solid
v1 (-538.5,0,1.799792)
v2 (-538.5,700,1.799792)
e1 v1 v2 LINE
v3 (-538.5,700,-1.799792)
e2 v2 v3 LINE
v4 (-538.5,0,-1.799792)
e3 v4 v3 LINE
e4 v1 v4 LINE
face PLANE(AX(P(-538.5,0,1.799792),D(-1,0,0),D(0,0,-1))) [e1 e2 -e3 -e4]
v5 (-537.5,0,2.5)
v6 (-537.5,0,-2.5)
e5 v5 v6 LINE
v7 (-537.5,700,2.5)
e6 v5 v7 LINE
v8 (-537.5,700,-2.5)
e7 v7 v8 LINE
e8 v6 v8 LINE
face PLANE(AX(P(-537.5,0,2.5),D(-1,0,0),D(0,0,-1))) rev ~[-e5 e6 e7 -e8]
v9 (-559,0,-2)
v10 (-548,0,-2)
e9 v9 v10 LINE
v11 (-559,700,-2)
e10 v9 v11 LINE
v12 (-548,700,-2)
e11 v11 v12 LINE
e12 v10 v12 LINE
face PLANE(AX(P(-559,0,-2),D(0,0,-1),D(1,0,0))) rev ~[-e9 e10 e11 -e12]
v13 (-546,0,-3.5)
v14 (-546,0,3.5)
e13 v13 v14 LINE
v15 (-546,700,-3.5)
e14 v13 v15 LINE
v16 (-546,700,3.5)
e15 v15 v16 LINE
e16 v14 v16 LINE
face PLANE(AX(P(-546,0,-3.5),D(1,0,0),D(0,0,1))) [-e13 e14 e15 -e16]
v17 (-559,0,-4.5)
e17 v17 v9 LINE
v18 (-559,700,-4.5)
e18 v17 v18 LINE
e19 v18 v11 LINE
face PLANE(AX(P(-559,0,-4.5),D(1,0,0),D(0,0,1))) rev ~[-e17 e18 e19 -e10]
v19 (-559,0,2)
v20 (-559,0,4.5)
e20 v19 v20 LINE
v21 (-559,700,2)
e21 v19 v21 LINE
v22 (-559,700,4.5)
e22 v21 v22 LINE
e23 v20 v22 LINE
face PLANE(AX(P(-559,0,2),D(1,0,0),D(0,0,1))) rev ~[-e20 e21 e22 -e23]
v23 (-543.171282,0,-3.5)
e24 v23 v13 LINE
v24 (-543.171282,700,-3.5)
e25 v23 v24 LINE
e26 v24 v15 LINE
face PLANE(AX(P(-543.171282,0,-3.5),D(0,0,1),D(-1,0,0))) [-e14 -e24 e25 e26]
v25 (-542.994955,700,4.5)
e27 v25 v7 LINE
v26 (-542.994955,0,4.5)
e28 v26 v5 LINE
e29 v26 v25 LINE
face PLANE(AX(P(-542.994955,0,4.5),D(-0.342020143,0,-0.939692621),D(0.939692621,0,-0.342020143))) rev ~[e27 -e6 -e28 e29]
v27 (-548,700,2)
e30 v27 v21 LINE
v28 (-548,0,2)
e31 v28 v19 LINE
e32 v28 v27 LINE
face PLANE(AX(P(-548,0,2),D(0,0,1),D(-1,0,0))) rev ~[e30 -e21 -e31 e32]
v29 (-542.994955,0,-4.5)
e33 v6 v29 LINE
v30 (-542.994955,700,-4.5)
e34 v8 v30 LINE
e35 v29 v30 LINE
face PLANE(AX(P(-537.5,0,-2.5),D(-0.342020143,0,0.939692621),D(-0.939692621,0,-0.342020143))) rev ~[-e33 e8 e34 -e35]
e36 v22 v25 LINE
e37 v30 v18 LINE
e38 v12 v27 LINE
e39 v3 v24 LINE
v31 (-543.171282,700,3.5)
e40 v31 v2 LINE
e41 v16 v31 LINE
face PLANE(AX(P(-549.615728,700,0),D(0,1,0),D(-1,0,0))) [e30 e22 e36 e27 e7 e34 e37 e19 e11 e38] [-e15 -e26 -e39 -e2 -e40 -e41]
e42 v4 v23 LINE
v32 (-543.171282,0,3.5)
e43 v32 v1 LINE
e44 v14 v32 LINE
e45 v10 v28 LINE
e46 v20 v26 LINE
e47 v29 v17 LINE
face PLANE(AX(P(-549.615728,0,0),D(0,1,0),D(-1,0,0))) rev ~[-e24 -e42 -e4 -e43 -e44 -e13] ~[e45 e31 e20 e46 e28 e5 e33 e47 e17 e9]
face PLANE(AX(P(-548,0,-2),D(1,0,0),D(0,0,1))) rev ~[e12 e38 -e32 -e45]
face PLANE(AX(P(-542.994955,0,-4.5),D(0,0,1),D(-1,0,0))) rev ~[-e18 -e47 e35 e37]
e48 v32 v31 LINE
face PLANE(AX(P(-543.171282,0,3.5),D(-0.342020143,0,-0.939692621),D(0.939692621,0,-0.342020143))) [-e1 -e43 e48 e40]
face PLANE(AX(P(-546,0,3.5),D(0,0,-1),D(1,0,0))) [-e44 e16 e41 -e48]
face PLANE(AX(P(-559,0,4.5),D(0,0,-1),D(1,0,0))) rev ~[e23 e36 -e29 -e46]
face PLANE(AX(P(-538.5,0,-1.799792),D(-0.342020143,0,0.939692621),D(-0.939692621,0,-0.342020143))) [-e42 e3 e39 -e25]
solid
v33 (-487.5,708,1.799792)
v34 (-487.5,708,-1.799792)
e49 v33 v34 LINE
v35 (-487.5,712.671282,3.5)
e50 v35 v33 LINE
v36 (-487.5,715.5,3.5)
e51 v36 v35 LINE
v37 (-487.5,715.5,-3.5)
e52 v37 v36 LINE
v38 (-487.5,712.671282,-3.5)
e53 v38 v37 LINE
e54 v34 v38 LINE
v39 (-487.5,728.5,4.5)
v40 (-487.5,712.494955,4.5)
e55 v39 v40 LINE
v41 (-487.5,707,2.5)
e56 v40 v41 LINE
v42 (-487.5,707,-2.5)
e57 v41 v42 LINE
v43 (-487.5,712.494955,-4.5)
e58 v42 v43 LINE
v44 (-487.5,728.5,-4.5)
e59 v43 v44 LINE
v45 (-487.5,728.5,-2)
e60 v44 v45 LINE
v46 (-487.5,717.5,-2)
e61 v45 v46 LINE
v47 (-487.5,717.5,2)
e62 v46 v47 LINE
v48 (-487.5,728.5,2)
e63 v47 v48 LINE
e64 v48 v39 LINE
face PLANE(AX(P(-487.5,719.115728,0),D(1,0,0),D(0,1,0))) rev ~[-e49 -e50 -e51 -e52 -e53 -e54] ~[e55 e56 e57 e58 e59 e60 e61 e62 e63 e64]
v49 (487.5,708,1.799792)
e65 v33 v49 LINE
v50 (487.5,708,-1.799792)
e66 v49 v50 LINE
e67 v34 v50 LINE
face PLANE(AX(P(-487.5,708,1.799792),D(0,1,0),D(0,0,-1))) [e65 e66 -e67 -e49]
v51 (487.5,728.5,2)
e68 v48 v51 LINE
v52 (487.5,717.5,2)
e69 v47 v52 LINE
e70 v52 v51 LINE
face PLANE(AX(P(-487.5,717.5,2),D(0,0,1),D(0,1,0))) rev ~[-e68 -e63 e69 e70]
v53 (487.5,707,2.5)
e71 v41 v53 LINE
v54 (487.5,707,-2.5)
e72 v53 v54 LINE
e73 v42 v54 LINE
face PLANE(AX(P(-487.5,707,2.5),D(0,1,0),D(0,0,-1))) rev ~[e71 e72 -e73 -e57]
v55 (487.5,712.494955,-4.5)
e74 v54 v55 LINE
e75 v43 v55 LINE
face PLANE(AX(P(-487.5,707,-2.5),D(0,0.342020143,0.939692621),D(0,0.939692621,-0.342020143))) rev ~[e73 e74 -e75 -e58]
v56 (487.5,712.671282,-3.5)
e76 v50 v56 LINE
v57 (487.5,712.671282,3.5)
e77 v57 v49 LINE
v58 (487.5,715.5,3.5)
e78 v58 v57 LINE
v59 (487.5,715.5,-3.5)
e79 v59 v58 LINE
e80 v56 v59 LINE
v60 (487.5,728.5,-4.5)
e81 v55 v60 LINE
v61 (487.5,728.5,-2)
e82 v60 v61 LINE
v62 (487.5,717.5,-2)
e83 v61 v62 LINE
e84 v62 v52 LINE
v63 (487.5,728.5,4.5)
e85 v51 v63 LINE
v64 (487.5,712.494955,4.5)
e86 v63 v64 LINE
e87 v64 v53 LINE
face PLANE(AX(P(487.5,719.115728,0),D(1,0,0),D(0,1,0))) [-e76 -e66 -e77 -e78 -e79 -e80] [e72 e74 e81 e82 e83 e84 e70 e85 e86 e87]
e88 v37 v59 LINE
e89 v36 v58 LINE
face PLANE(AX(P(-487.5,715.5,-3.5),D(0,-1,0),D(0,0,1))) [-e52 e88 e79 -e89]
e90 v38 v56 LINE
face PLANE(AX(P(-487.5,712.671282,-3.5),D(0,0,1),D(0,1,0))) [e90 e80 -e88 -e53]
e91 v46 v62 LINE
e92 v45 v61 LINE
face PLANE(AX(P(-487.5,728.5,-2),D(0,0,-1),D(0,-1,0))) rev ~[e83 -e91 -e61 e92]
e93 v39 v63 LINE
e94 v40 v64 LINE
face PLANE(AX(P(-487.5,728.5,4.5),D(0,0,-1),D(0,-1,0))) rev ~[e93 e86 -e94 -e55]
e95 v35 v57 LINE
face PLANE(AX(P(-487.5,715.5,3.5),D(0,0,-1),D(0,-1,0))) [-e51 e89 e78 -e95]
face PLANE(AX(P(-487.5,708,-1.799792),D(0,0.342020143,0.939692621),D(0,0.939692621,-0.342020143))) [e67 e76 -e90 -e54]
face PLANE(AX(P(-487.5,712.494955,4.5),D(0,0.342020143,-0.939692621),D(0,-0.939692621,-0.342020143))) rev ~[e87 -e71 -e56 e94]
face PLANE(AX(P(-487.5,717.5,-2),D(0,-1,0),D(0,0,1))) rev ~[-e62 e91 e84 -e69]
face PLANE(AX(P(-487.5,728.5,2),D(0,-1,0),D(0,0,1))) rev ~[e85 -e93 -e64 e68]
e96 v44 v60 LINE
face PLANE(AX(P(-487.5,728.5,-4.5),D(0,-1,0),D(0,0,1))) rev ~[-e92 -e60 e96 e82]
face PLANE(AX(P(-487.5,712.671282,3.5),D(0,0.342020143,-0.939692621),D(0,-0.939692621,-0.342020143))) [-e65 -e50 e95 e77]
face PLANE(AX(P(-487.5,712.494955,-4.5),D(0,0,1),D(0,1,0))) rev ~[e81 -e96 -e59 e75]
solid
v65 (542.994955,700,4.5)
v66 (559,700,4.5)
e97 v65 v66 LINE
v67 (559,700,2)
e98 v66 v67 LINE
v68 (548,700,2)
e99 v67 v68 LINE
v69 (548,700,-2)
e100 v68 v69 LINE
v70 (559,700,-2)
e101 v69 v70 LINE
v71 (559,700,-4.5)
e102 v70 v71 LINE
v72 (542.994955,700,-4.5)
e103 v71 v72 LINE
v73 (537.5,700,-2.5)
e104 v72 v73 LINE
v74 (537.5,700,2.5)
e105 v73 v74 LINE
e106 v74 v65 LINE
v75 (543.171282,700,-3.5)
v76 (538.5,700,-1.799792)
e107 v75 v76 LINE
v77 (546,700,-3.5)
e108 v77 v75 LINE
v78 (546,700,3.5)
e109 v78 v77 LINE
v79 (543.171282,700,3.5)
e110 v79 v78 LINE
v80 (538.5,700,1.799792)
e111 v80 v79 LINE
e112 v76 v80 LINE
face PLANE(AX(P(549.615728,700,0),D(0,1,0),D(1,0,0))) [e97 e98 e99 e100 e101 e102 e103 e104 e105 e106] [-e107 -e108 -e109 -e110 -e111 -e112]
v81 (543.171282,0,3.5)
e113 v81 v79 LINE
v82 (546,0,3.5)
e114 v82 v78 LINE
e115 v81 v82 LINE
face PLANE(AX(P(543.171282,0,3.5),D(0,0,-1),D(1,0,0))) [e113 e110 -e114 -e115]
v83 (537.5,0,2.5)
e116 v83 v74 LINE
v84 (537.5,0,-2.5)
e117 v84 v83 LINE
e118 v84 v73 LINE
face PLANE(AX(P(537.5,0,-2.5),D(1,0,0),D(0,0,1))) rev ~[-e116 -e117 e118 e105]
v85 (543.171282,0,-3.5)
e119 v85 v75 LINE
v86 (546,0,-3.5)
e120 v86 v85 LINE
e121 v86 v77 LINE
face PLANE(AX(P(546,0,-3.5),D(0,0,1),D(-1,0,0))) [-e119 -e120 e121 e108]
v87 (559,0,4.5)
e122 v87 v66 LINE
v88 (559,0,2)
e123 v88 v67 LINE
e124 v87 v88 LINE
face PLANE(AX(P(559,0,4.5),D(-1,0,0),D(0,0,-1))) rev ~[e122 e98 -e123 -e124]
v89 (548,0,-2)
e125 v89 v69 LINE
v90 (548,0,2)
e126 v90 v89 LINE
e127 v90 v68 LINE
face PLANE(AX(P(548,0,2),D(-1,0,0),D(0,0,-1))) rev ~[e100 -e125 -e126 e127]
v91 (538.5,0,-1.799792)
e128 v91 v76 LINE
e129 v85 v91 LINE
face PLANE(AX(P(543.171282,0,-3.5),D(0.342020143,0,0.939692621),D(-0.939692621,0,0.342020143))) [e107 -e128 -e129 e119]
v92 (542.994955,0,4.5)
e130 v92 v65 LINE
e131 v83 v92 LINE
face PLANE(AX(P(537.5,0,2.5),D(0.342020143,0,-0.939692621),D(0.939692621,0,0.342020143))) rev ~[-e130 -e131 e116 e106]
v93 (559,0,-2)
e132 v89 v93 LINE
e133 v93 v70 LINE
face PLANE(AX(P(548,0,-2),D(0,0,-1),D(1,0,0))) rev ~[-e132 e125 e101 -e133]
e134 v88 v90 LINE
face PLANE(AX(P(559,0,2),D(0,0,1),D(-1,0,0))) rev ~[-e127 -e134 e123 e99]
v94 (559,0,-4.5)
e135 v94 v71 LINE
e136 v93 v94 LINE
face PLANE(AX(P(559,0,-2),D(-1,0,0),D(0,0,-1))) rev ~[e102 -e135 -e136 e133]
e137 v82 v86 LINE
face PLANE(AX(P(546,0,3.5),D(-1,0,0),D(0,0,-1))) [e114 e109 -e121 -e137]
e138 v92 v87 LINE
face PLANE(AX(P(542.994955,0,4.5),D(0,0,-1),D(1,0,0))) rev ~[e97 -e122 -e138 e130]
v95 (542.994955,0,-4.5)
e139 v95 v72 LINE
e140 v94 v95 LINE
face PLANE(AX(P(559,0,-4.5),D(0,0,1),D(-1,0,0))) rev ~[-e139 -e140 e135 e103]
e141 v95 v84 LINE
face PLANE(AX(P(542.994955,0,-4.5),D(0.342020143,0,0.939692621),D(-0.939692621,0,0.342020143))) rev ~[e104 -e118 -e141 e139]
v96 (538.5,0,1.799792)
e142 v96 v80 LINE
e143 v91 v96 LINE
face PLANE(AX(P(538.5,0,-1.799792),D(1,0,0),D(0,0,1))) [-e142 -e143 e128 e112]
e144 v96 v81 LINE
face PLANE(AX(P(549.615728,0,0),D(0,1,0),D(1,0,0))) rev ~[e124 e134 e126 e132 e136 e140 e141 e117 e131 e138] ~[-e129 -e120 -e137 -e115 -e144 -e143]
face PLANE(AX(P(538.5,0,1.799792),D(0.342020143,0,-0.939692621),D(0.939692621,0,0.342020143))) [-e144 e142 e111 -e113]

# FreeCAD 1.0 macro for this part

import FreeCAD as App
import Part
import Sketcher
Q = App.Units.Quantity

doc = App.newDocument("Part")
params = doc.addObject("Spreadsheet::Sheet", "Params")
for row, (alias, value) in enumerate([
    ("sketch1_width", "11 mm"),
    ("sketch1_height", "5 mm"),
    ("sketch1_height2", "4 mm"),
    ("sketch1_height3", "7 mm"),
    ("sketch1_height4", "2.5 mm"),
    ("pad1_length", "700 mm"),
    ("sketch2_width", "11 mm"),
    ("sketch2_height", "5 mm"),
    ("sketch2_height2", "4 mm"),
    ("sketch2_height3", "7 mm"),
    ("sketch2_height4", "2.5 mm"),
    ("pad2_length", "975 mm"),
    ("sketch3_width", "11 mm"),
    ("sketch3_height", "5 mm"),
    ("sketch3_height2", "4 mm"),
    ("sketch3_height3", "7 mm"),
    ("sketch3_height4", "2.5 mm"),
    ("pad3_length", "700 mm"),
], start=1):
    params.set(f"A{row}", alias)
    params.set(f"B{row}", "=" + value)
    params.setAlias(f"B{row}", alias)

body = doc.addObject("PartDesign::Body", "Body")

# Sketch on XZ plane
sketch1 = doc.addObject("Sketcher::SketchObject", "Sketch")
body.addObject(sketch1)
sketch1.AttachmentSupport = (doc.XZ_Plane, [""])
sketch1.MapMode = "FlatFace"
sketch1.addGeometry([
    Part.LineSegment(App.Vector(-559, 4.5, 0), App.Vector(-543, 4.5, 0)),  # 0
    Part.LineSegment(App.Vector(-543, 4.5, 0), App.Vector(-537.5, 2.5, 0)),  # 1
    Part.LineSegment(App.Vector(-537.5, 2.5, 0), App.Vector(-537.5, -2.5, 0)),  # 2
    Part.LineSegment(App.Vector(-537.5, -2.5, 0), App.Vector(-543, -4.5, 0)),  # 3
    Part.LineSegment(App.Vector(-543, -4.5, 0), App.Vector(-559, -4.5, 0)),  # 4
    Part.LineSegment(App.Vector(-559, -4.5, 0), App.Vector(-559, -2, 0)),  # 5
    Part.LineSegment(App.Vector(-559, -2, 0), App.Vector(-548, -2, 0)),  # 6
    Part.LineSegment(App.Vector(-548, -2, 0), App.Vector(-548, 2, 0)),  # 7
    Part.LineSegment(App.Vector(-548, 2, 0), App.Vector(-559, 2, 0)),  # 8
    Part.LineSegment(App.Vector(-559, 2, 0), App.Vector(-559, 4.5, 0)),  # 9
    Part.LineSegment(App.Vector(-538.5, 1.8, 0), App.Vector(-543.2, 3.5, 0)),  # 10
    Part.LineSegment(App.Vector(-543.2, 3.5, 0), App.Vector(-546, 3.5, 0)),  # 11
    Part.LineSegment(App.Vector(-546, 3.5, 0), App.Vector(-546, -3.5, 0)),  # 12
    Part.LineSegment(App.Vector(-546, -3.5, 0), App.Vector(-543.2, -3.5, 0)),  # 13
    Part.LineSegment(App.Vector(-543.2, -3.5, 0), App.Vector(-538.5, -1.8, 0)),  # 14
    Part.LineSegment(App.Vector(-538.5, -1.8, 0), App.Vector(-538.5, 1.8, 0)),  # 15
], False)
sketch1.addConstraint([
    Sketcher.Constraint("Coincident", 0, 2, 1, 1),
    Sketcher.Constraint("Coincident", 1, 2, 2, 1),
    Sketcher.Constraint("Coincident", 2, 2, 3, 1),
    Sketcher.Constraint("Coincident", 3, 2, 4, 1),
    Sketcher.Constraint("Coincident", 4, 2, 5, 1),
    Sketcher.Constraint("Coincident", 5, 2, 6, 1),
    Sketcher.Constraint("Coincident", 6, 2, 7, 1),
    Sketcher.Constraint("Coincident", 7, 2, 8, 1),
    Sketcher.Constraint("Coincident", 8, 2, 9, 1),
    Sketcher.Constraint("Coincident", 9, 2, 0, 1),
    Sketcher.Constraint("Coincident", 10, 2, 11, 1),
    Sketcher.Constraint("Coincident", 11, 2, 12, 1),
    Sketcher.Constraint("Coincident", 12, 2, 13, 1),
    Sketcher.Constraint("Coincident", 13, 2, 14, 1),
    Sketcher.Constraint("Coincident", 14, 2, 15, 1),
    Sketcher.Constraint("Coincident", 15, 2, 10, 1),
    Sketcher.Constraint("Horizontal", 0),
    Sketcher.Constraint("Vertical", 2),
    Sketcher.Constraint("Horizontal", 4),
    Sketcher.Constraint("Vertical", 5),
    Sketcher.Constraint("Horizontal", 6),
    Sketcher.Constraint("Vertical", 7),
    Sketcher.Constraint("Horizontal", 8),
    Sketcher.Constraint("Vertical", 9),
    Sketcher.Constraint("Horizontal", 11),
    Sketcher.Constraint("Vertical", 12),
    Sketcher.Constraint("Horizontal", 13),
    Sketcher.Constraint("Vertical", 15),
    Sketcher.Constraint("Symmetric", 0, 2, 3, 2, -1),
    Sketcher.Constraint("Symmetric", 5, 2, 8, 2, -1),
    Sketcher.Constraint("Symmetric", 10, 2, 13, 2, -1),
    Sketcher.Constraint("Parallel", 1, 10),
    Sketcher.Constraint("Parallel", 3, 14),
    Sketcher.Constraint("Equal", 1, 3),
    Sketcher.Constraint("DistanceX", 6, 1, 6, 2, 11.0),
    Sketcher.Constraint("DistanceY", 2, 2, 2, 1, 5.0),
    Sketcher.Constraint("DistanceY", 7, 1, 7, 2, 4.0),
    Sketcher.Constraint("DistanceY", 12, 2, 12, 1, 7.0),
    Sketcher.Constraint("Angle", 1, Q("-20 deg")),
    Sketcher.Constraint("DistanceY", 5, 1, 5, 2, 2.5),
    Sketcher.Constraint("DistanceX", 4, 2, -1, 1, 559.0),
    Sketcher.Constraint("DistanceX", 11, 2, -1, 1, 546.0),
    Sketcher.Constraint("DistanceX", 14, 2, 2, 2, 1.0),
    Sketcher.Constraint("DistanceX", 1, 2, -1, 1, 537.5),
    Sketcher.Constraint("DistanceX", 11, 2, 11, 1, 2.828718),
])
sketch1.setExpression("Constraints[34]", "Params.sketch1_width")
sketch1.setExpression("Constraints[35]", "Params.sketch1_height")
sketch1.setExpression("Constraints[36]", "Params.sketch1_height2")
sketch1.setExpression("Constraints[37]", "Params.sketch1_height3")
sketch1.setExpression("Constraints[39]", "Params.sketch1_height4")
pad1 = doc.addObject("PartDesign::Pad", "Pad")
body.addObject(pad1)
pad1.Profile = sketch1
pad1.setExpression("Length", "Params.pad1_length")
pad1.Reversed = True
body2 = doc.addObject("PartDesign::Body", "Body001")

# Sketch on YZ plane
sketch2 = doc.addObject("Sketcher::SketchObject", "Sketch001")
body2.addObject(sketch2)
sketch2.AttachmentSupport = (doc.getObject("YZ_Plane001"), [""])
sketch2.MapMode = "FlatFace"
sketch2.AttachmentOffset = App.Placement(App.Vector(0, 0, -487.5), App.Rotation())
sketch2.addGeometry([
    Part.LineSegment(App.Vector(728.5, 4.5, 0), App.Vector(712.5, 4.5, 0)),  # 0
    Part.LineSegment(App.Vector(712.5, 4.5, 0), App.Vector(707, 2.5, 0)),  # 1
    Part.LineSegment(App.Vector(707, 2.5, 0), App.Vector(707, -2.5, 0)),  # 2
    Part.LineSegment(App.Vector(707, -2.5, 0), App.Vector(712.5, -4.5, 0)),  # 3
    Part.LineSegment(App.Vector(712.5, -4.5, 0), App.Vector(728.5, -4.5, 0)),  # 4
    Part.LineSegment(App.Vector(728.5, -4.5, 0), App.Vector(728.5, -2, 0)),  # 5
    Part.LineSegment(App.Vector(728.5, -2, 0), App.Vector(717.5, -2, 0)),  # 6
    Part.LineSegment(App.Vector(717.5, -2, 0), App.Vector(717.5, 2, 0)),  # 7
    Part.LineSegment(App.Vector(717.5, 2, 0), App.Vector(728.5, 2, 0)),  # 8
    Part.LineSegment(App.Vector(728.5, 2, 0), App.Vector(728.5, 4.5, 0)),  # 9
    Part.LineSegment(App.Vector(708, 1.8, 0), App.Vector(712.7, 3.5, 0)),  # 10
    Part.LineSegment(App.Vector(712.7, 3.5, 0), App.Vector(715.5, 3.5, 0)),  # 11
    Part.LineSegment(App.Vector(715.5, 3.5, 0), App.Vector(715.5, -3.5, 0)),  # 12
    Part.LineSegment(App.Vector(715.5, -3.5, 0), App.Vector(712.7, -3.5, 0)),  # 13
    Part.LineSegment(App.Vector(712.7, -3.5, 0), App.Vector(708, -1.8, 0)),  # 14
    Part.LineSegment(App.Vector(708, -1.8, 0), App.Vector(708, 1.8, 0)),  # 15
], False)
sketch2.addConstraint([
    Sketcher.Constraint("Coincident", 0, 2, 1, 1),
    Sketcher.Constraint("Coincident", 1, 2, 2, 1),
    Sketcher.Constraint("Coincident", 2, 2, 3, 1),
    Sketcher.Constraint("Coincident", 3, 2, 4, 1),
    Sketcher.Constraint("Coincident", 4, 2, 5, 1),
    Sketcher.Constraint("Coincident", 5, 2, 6, 1),
    Sketcher.Constraint("Coincident", 6, 2, 7, 1),
    Sketcher.Constraint("Coincident", 7, 2, 8, 1),
    Sketcher.Constraint("Coincident", 8, 2, 9, 1),
    Sketcher.Constraint("Coincident", 9, 2, 0, 1),
    Sketcher.Constraint("Coincident", 10, 2, 11, 1),
    Sketcher.Constraint("Coincident", 11, 2, 12, 1),
    Sketcher.Constraint("Coincident", 12, 2, 13, 1),
    Sketcher.Constraint("Coincident", 13, 2, 14, 1),
    Sketcher.Constraint("Coincident", 14, 2, 15, 1),
    Sketcher.Constraint("Coincident", 15, 2, 10, 1),
    Sketcher.Constraint("Horizontal", 0),
    Sketcher.Constraint("Vertical", 2),
    Sketcher.Constraint("Horizontal", 4),
    Sketcher.Constraint("Vertical", 5),
    Sketcher.Constraint("Horizontal", 6),
    Sketcher.Constraint("Vertical", 7),
    Sketcher.Constraint("Horizontal", 8),
    Sketcher.Constraint("Vertical", 9),
    Sketcher.Constraint("Horizontal", 11),
    Sketcher.Constraint("Vertical", 12),
    Sketcher.Constraint("Horizontal", 13),
    Sketcher.Constraint("Vertical", 15),
    Sketcher.Constraint("Symmetric", 0, 2, 3, 2, -1),
    Sketcher.Constraint("Symmetric", 5, 2, 8, 2, -1),
    Sketcher.Constraint("Symmetric", 10, 2, 13, 2, -1),
    Sketcher.Constraint("Parallel", 1, 10),
    Sketcher.Constraint("Parallel", 3, 14),
    Sketcher.Constraint("Equal", 1, 3),
    Sketcher.Constraint("DistanceX", 6, 2, 6, 1, 11.0),
    Sketcher.Constraint("DistanceY", 2, 2, 2, 1, 5.0),
    Sketcher.Constraint("DistanceY", 7, 1, 7, 2, 4.0),
    Sketcher.Constraint("DistanceY", 12, 2, 12, 1, 7.0),
    Sketcher.Constraint("Angle", 1, Q("-160 deg")),
    Sketcher.Constraint("DistanceY", 5, 1, 5, 2, 2.5),
    Sketcher.Constraint("DistanceX", -1, 1, 1, 2, 707.0),
    Sketcher.Constraint("DistanceX", -1, 1, 14, 2, 708.0),
    Sketcher.Constraint("DistanceX", 11, 2, 7, 2, 2.0),
    Sketcher.Constraint("DistanceX", -1, 1, 4, 2, 728.5),
    Sketcher.Constraint("DistanceX", 11, 1, 11, 2, 2.828718),
])
sketch2.setExpression("Constraints[34]", "Params.sketch2_width")
sketch2.setExpression("Constraints[35]", "Params.sketch2_height")
sketch2.setExpression("Constraints[36]", "Params.sketch2_height2")
sketch2.setExpression("Constraints[37]", "Params.sketch2_height3")
sketch2.setExpression("Constraints[39]", "Params.sketch2_height4")
pad2 = doc.addObject("PartDesign::Pad", "Pad001")
body2.addObject(pad2)
pad2.Profile = sketch2
pad2.setExpression("Length", "Params.pad2_length")
body3 = doc.addObject("PartDesign::Body", "Body002")

# Sketch on XZ plane
sketch3 = doc.addObject("Sketcher::SketchObject", "Sketch002")
body3.addObject(sketch3)
sketch3.AttachmentSupport = (doc.getObject("XZ_Plane002"), [""])
sketch3.MapMode = "FlatFace"
sketch3.addGeometry([
    Part.LineSegment(App.Vector(559, -4.5, 0), App.Vector(543, -4.5, 0)),  # 0
    Part.LineSegment(App.Vector(543, -4.5, 0), App.Vector(537.5, -2.5, 0)),  # 1
    Part.LineSegment(App.Vector(537.5, -2.5, 0), App.Vector(537.5, 2.5, 0)),  # 2
    Part.LineSegment(App.Vector(537.5, 2.5, 0), App.Vector(543, 4.5, 0)),  # 3
    Part.LineSegment(App.Vector(543, 4.5, 0), App.Vector(559, 4.5, 0)),  # 4
    Part.LineSegment(App.Vector(559, 4.5, 0), App.Vector(559, 2, 0)),  # 5
    Part.LineSegment(App.Vector(559, 2, 0), App.Vector(548, 2, 0)),  # 6
    Part.LineSegment(App.Vector(548, 2, 0), App.Vector(548, -2, 0)),  # 7
    Part.LineSegment(App.Vector(548, -2, 0), App.Vector(559, -2, 0)),  # 8
    Part.LineSegment(App.Vector(559, -2, 0), App.Vector(559, -4.5, 0)),  # 9
    Part.LineSegment(App.Vector(538.5, -1.8, 0), App.Vector(543.2, -3.5, 0)),  # 10
    Part.LineSegment(App.Vector(543.2, -3.5, 0), App.Vector(546, -3.5, 0)),  # 11
    Part.LineSegment(App.Vector(546, -3.5, 0), App.Vector(546, 3.5, 0)),  # 12
    Part.LineSegment(App.Vector(546, 3.5, 0), App.Vector(543.2, 3.5, 0)),  # 13
    Part.LineSegment(App.Vector(543.2, 3.5, 0), App.Vector(538.5, 1.8, 0)),  # 14
    Part.LineSegment(App.Vector(538.5, 1.8, 0), App.Vector(538.5, -1.8, 0)),  # 15
], False)
sketch3.addConstraint([
    Sketcher.Constraint("Coincident", 0, 2, 1, 1),
    Sketcher.Constraint("Coincident", 1, 2, 2, 1),
    Sketcher.Constraint("Coincident", 2, 2, 3, 1),
    Sketcher.Constraint("Coincident", 3, 2, 4, 1),
    Sketcher.Constraint("Coincident", 4, 2, 5, 1),
    Sketcher.Constraint("Coincident", 5, 2, 6, 1),
    Sketcher.Constraint("Coincident", 6, 2, 7, 1),
    Sketcher.Constraint("Coincident", 7, 2, 8, 1),
    Sketcher.Constraint("Coincident", 8, 2, 9, 1),
    Sketcher.Constraint("Coincident", 9, 2, 0, 1),
    Sketcher.Constraint("Coincident", 10, 2, 11, 1),
    Sketcher.Constraint("Coincident", 11, 2, 12, 1),
    Sketcher.Constraint("Coincident", 12, 2, 13, 1),
    Sketcher.Constraint("Coincident", 13, 2, 14, 1),
    Sketcher.Constraint("Coincident", 14, 2, 15, 1),
    Sketcher.Constraint("Coincident", 15, 2, 10, 1),
    Sketcher.Constraint("Horizontal", 0),
    Sketcher.Constraint("Vertical", 2),
    Sketcher.Constraint("Horizontal", 4),
    Sketcher.Constraint("Vertical", 5),
    Sketcher.Constraint("Horizontal", 6),
    Sketcher.Constraint("Vertical", 7),
    Sketcher.Constraint("Horizontal", 8),
    Sketcher.Constraint("Vertical", 9),
    Sketcher.Constraint("Horizontal", 11),
    Sketcher.Constraint("Vertical", 12),
    Sketcher.Constraint("Horizontal", 13),
    Sketcher.Constraint("Vertical", 15),
    Sketcher.Constraint("Symmetric", 0, 2, 3, 2, -1),
    Sketcher.Constraint("Symmetric", 5, 2, 8, 2, -1),
    Sketcher.Constraint("Symmetric", 10, 2, 13, 2, -1),
    Sketcher.Constraint("Parallel", 1, 10),
    Sketcher.Constraint("Parallel", 3, 14),
    Sketcher.Constraint("Equal", 1, 3),
    Sketcher.Constraint("DistanceX", 6, 2, 6, 1, 11.0),
    Sketcher.Constraint("DistanceY", 2, 1, 2, 2, 5.0),
    Sketcher.Constraint("DistanceY", 7, 2, 7, 1, 4.0),
    Sketcher.Constraint("DistanceY", 12, 1, 12, 2, 7.0),
    Sketcher.Constraint("Angle", 1, Q("160 deg")),
    Sketcher.Constraint("DistanceY", 5, 2, 5, 1, 2.5),
    Sketcher.Constraint("DistanceX", -1, 1, 4, 2, 559.0),
    Sketcher.Constraint("DistanceX", -1, 1, 11, 2, 546.0),
    Sketcher.Constraint("DistanceX", 2, 2, 14, 2, 1.0),
    Sketcher.Constraint("DistanceX", -1, 1, 1, 2, 537.5),
    Sketcher.Constraint("DistanceX", 11, 1, 11, 2, 2.828718),
])
sketch3.setExpression("Constraints[34]", "Params.sketch3_width")
sketch3.setExpression("Constraints[35]", "Params.sketch3_height")
sketch3.setExpression("Constraints[36]", "Params.sketch3_height2")
sketch3.setExpression("Constraints[37]", "Params.sketch3_height3")
sketch3.setExpression("Constraints[39]", "Params.sketch3_height4")
pad3 = doc.addObject("PartDesign::Pad", "Pad002")
body3.addObject(pad3)
pad3.Profile = sketch3
pad3.setExpression("Length", "Params.pad3_length")
pad3.Reversed = True

doc.recompute()
